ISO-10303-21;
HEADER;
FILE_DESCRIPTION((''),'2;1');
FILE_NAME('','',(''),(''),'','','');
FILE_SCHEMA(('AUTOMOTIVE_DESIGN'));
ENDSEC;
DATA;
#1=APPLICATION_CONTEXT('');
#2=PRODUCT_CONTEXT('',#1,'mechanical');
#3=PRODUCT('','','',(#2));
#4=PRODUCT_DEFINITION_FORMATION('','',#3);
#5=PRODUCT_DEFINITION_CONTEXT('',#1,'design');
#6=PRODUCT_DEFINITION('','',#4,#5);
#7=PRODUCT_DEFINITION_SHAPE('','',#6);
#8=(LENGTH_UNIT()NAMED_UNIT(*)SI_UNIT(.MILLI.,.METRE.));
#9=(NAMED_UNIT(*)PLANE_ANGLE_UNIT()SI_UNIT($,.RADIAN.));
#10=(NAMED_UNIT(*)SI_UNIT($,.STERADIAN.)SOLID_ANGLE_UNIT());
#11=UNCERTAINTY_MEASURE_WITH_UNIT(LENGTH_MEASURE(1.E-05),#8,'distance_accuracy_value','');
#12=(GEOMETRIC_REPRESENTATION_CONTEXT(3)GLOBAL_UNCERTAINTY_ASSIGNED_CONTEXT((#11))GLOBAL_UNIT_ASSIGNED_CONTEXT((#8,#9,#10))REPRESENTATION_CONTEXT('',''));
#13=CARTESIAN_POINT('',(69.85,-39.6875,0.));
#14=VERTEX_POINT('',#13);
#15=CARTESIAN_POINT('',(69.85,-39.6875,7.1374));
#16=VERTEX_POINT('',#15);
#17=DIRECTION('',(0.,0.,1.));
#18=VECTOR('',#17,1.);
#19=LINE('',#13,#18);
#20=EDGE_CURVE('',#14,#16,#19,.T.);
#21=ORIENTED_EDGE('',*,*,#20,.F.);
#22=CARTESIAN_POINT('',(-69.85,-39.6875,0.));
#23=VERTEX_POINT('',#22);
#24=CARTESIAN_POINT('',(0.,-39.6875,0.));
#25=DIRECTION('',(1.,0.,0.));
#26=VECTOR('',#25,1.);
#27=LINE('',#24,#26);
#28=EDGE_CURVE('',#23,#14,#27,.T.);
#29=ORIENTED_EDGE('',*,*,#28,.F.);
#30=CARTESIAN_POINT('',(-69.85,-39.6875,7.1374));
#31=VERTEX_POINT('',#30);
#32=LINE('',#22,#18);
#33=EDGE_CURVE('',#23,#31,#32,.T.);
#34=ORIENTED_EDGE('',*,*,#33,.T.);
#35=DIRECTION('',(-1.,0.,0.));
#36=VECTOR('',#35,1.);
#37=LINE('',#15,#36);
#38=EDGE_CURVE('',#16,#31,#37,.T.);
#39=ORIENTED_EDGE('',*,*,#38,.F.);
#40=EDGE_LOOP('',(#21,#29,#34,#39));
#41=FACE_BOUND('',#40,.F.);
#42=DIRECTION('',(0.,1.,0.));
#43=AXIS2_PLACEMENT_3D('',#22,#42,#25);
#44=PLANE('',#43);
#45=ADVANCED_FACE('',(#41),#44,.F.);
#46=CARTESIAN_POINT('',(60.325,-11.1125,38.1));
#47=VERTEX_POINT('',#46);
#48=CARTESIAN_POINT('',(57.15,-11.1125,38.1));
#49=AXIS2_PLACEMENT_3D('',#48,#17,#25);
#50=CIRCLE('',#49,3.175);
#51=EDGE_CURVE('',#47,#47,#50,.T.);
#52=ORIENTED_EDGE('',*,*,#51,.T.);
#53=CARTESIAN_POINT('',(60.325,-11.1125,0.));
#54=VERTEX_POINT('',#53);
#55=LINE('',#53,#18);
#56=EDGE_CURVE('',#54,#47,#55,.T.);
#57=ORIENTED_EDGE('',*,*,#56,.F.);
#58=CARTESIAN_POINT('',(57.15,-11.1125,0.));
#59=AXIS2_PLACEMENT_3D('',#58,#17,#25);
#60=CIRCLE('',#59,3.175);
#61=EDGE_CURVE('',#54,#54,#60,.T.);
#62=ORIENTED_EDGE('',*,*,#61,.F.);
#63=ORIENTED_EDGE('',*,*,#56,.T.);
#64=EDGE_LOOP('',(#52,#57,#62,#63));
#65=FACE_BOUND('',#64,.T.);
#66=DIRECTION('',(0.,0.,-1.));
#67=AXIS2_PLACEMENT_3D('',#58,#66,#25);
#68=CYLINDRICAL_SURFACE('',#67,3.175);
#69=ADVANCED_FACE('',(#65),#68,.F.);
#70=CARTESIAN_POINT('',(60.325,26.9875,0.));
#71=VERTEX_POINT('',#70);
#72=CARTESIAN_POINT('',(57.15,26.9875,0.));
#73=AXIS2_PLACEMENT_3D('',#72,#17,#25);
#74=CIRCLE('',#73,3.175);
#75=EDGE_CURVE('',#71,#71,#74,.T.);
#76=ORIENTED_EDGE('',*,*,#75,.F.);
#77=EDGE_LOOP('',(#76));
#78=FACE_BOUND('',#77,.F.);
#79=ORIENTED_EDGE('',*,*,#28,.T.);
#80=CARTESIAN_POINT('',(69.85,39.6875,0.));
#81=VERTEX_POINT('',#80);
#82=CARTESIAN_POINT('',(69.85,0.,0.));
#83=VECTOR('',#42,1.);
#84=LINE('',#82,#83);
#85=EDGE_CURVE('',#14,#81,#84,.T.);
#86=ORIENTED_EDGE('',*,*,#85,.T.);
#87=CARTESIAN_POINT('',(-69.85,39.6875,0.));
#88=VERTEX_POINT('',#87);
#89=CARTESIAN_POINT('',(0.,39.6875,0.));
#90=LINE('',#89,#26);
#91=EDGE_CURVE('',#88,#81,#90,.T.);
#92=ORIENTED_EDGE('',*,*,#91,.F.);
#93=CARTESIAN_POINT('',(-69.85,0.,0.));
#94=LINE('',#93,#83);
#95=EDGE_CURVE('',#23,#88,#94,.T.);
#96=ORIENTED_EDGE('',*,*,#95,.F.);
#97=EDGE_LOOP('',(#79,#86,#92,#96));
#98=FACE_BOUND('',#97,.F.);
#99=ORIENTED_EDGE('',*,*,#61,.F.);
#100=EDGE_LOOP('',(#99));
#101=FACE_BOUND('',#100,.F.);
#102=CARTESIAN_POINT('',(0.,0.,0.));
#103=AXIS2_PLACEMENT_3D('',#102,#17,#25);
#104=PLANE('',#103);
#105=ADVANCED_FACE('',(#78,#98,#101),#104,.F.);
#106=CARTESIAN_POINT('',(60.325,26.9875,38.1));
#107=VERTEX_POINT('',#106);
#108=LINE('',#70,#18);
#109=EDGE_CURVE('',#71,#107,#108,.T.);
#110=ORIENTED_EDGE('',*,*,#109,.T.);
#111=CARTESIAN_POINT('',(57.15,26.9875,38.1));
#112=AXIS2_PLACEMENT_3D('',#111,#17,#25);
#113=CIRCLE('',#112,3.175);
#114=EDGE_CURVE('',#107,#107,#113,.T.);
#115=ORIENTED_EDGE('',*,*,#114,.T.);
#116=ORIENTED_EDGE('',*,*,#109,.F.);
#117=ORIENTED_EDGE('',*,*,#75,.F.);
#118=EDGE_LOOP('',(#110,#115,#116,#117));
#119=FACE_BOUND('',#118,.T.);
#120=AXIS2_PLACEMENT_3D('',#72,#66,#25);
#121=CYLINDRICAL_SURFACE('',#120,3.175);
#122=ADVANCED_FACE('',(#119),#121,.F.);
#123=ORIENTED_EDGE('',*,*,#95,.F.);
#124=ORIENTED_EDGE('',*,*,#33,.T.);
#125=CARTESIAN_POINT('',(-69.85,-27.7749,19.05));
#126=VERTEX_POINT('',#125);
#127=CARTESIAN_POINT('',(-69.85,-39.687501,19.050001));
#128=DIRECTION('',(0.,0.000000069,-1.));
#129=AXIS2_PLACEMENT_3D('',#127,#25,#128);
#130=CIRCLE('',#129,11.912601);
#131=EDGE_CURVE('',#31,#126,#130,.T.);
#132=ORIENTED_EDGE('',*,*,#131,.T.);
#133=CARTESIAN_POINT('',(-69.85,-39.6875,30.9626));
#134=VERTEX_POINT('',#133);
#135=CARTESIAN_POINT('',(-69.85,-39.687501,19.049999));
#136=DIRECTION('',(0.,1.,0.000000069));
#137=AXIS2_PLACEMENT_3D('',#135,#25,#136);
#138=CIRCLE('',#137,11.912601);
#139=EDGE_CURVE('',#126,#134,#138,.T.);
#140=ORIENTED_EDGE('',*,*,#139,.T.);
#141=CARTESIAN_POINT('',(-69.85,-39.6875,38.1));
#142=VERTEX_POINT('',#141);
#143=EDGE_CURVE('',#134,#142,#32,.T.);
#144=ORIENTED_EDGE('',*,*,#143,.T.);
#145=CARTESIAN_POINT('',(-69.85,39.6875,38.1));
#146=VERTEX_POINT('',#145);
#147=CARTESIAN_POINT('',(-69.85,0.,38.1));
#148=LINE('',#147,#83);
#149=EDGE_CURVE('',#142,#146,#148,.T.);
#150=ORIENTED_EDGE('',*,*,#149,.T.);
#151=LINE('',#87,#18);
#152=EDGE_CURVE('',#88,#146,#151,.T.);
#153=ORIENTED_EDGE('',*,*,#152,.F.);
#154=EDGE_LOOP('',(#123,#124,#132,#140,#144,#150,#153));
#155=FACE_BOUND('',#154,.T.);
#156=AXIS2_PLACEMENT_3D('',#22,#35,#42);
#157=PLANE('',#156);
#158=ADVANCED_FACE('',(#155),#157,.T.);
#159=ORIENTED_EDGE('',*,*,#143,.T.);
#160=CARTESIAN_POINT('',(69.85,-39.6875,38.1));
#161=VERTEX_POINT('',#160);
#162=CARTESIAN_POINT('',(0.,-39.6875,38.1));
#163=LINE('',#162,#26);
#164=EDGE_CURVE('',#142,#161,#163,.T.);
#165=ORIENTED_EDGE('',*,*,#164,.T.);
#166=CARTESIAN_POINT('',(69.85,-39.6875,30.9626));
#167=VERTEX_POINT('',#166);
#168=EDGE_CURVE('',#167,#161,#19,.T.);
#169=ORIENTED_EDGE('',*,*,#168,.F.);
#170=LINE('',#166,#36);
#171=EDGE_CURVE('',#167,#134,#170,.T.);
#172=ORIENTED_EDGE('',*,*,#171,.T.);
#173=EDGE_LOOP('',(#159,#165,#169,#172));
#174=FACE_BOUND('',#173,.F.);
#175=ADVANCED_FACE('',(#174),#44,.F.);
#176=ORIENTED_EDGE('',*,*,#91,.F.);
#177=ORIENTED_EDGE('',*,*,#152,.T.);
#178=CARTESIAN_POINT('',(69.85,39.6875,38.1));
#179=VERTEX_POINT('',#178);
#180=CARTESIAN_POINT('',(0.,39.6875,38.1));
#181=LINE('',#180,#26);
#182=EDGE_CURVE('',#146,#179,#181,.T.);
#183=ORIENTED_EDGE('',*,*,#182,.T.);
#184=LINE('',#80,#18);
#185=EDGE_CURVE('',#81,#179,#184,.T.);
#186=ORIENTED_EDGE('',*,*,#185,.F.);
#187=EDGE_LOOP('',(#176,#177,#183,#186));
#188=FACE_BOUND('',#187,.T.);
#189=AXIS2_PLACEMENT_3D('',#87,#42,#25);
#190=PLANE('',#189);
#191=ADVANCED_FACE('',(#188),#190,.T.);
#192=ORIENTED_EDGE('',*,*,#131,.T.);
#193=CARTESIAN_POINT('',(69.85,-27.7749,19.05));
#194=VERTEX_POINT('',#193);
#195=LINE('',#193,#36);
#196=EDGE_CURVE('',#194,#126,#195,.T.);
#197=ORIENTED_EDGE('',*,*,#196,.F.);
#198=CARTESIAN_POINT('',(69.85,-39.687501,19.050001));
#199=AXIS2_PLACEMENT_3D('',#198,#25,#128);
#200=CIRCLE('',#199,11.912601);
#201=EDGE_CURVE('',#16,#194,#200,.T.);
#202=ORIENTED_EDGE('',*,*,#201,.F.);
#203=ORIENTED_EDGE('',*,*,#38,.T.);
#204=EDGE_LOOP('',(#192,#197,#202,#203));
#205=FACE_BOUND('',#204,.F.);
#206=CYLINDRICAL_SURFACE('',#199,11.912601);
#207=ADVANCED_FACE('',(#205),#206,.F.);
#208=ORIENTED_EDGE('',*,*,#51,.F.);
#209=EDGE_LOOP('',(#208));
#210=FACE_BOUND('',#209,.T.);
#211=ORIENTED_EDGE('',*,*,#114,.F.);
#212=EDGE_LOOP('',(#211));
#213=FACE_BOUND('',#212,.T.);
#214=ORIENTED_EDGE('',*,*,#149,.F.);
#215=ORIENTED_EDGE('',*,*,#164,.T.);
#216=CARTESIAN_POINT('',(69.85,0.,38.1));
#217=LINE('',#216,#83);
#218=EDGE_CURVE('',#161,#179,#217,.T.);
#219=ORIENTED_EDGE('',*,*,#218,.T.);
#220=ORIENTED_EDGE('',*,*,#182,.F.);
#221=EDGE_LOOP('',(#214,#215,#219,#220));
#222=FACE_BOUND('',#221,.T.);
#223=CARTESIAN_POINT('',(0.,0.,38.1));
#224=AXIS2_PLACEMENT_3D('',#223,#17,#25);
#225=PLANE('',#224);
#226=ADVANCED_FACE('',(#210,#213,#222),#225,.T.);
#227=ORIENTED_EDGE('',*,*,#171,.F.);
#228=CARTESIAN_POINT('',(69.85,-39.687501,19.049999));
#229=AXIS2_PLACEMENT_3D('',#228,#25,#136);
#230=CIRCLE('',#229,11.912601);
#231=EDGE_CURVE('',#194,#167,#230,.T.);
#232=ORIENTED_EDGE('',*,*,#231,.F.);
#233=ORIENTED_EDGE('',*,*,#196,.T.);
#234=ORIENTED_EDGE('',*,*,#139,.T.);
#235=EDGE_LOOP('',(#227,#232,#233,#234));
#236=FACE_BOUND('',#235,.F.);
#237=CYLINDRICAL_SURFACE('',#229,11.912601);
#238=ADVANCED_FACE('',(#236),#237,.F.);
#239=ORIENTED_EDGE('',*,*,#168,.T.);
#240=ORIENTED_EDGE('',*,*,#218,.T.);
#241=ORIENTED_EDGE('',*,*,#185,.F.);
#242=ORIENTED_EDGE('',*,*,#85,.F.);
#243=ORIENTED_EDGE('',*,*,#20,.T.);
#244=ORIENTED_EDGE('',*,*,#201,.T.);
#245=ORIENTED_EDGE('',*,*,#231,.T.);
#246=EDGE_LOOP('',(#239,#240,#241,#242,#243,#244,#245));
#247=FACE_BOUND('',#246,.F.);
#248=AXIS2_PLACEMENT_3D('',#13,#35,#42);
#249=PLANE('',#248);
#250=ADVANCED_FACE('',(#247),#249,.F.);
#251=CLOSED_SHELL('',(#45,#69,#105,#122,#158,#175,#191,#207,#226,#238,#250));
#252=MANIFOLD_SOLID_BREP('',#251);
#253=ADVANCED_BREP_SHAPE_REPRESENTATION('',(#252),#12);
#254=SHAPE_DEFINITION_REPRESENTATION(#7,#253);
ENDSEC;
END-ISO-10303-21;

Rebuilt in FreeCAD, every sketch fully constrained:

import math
import FreeCAD as App
import Part
import Sketcher
from FreeCAD import Vector
Q = App.Units.Quantity

doc = App.newDocument("Part")
body = doc.addObject("PartDesign::Body", "Body")

sketch1 = body.newObject("Sketcher::SketchObject", "Sketch")
sketch1.AttachmentSupport = (doc.getObject("XY_Plane"), [""])
sketch1.MapMode = "FlatFace"
sketch1.addGeometry([
    Part.LineSegment(Vector(-69.85, 39.6875, 0), Vector(-69.85, -39.6875, 0)),
    Part.LineSegment(Vector(-69.85, -39.6875, 0), Vector(69.85, -39.6875, 0)),
    Part.LineSegment(Vector(69.85, -39.6875, 0), Vector(69.85, 39.6875, 0)),
    Part.LineSegment(Vector(69.85, 39.6875, 0), Vector(-69.85, 39.6875, 0)),
    Part.Circle(Vector(57.15, -11.1125, 0), Vector(0, 0, 1), 3.175),
    Part.Circle(Vector(57.15, 26.9875, 0), Vector(0, 0, 1), 3.175),
], False)
sketch1.addConstraint([
    Sketcher.Constraint("Coincident", 0, 2, 1, 1),
    Sketcher.Constraint("Coincident", 1, 2, 2, 1),
    Sketcher.Constraint("Coincident", 2, 2, 3, 1),
    Sketcher.Constraint("Coincident", 3, 2, 0, 1),
    Sketcher.Constraint("Vertical", 0),
    Sketcher.Constraint("Horizontal", 1),
    Sketcher.Constraint("Vertical", 2),
    Sketcher.Constraint("Horizontal", 3),
    Sketcher.Constraint("Equal", 4, 5),
    Sketcher.Constraint("Symmetric", 0, 2, 2, 2, -1, 1),
    Sketcher.Constraint("Vertical", 4, 3, 5, 3),
    Sketcher.Constraint("Diameter", 4, Q("0.25 in")),
    Sketcher.Constraint("DistanceX", 1, 1, 1, 2, Q("5.5 in")),
    Sketcher.Constraint("DistanceX", 0, 2, 4, 3, Q("5 in")),
    Sketcher.Constraint("DistanceY", 4, 3, 2, 2, Q("2 in")),
    Sketcher.Constraint("DistanceY", 4, 3, 5, 3, Q("1.5 in")),
    Sketcher.Constraint("DistanceY", 0, 2, 0, 1, Q("3.125 in")),
])
pad1 = body.newObject("PartDesign::Pad", "Pad")
pad1.Profile = sketch1
pad1.Length = Q("1.5 in")

sketch2 = body.newObject("Sketcher::SketchObject", "Sketch001")
sketch2.AttachmentSupport = (doc.getObject("YZ_Plane"), [""])
sketch2.MapMode = "FlatFace"
sketch2.AttachmentOffset = App.Placement(Vector(0, 0, 2.75 * 25.4), App.Rotation())
sketch2.addGeometry([
    Part.ArcOfCircle(Part.Circle(Vector(-39.687501, 19.050001, 0), Vector(0, 0, 1), 11.912601), math.radians(-89.999996), math.radians(-0.000004)),
    Part.ArcOfCircle(Part.Circle(Vector(-39.687501, 19.049999, 0), Vector(0, 0, 1), 11.912601), math.radians(0.000004), math.radians(89.999996)),
    Part.LineSegment(Vector(-39.6875, 30.9626, 0), Vector(-39.6875, 7.1374, 0)),
], False)
sketch2.addConstraint([
    Sketcher.Constraint("Tangent", 0, 2, 1, 1),
    Sketcher.Constraint("Coincident", 1, 2, 2, 1),
    Sketcher.Constraint("Coincident", 2, 2, 0, 1),
    Sketcher.Constraint("Vertical", 2),
    Sketcher.Constraint("Equal", 0, 1),
    Sketcher.Constraint("Horizontal", 1, 3, 0, 2),
    Sketcher.Constraint("Vertical", 0, 3, 1, 2),
    Sketcher.Constraint("Radius", 0, Q("0.469 in")),
    Sketcher.Constraint("DistanceY", -1, 1, 0, 3, Q("0.75 in")),
    Sketcher.Constraint("DistanceX", 0, 3, -1, 1, Q("1.5625 in")),
])
pocket1 = body.newObject("PartDesign::Pocket", "Pocket")
pocket1.Profile = sketch2
pocket1.Type = "ThroughAll"

doc.recompute()
